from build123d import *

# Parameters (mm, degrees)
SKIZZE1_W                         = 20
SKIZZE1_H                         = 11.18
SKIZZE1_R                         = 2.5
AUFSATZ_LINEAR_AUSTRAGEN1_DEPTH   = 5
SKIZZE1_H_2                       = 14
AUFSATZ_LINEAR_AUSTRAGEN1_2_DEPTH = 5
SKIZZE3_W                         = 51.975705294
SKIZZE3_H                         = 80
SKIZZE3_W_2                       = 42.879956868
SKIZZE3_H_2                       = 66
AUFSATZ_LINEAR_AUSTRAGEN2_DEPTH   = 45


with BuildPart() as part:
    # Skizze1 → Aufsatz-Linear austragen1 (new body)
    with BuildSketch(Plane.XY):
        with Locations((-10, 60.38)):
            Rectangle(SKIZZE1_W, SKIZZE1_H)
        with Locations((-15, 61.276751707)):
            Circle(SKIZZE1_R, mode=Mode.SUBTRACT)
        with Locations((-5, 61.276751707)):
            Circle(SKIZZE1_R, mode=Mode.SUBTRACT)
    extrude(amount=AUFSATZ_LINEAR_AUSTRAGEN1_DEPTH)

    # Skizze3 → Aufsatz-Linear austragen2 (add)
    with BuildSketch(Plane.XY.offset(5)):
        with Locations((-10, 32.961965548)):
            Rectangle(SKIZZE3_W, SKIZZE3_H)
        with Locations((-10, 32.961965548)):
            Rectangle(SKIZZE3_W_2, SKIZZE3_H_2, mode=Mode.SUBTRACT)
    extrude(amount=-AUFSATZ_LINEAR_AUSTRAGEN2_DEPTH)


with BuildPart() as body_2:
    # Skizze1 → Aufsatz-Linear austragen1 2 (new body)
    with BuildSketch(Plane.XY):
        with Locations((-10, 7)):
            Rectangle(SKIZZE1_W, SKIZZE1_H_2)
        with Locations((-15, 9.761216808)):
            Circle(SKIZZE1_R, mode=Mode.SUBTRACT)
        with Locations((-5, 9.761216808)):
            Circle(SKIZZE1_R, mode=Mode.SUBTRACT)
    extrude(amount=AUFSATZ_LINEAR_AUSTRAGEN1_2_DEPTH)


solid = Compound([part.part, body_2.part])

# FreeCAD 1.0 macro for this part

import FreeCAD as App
import Part
import Sketcher
from FreeCAD import Vector

doc = App.newDocument("Part")
body = doc.addObject("PartDesign::Body", "Body")

# Sketch on XY plane
sketch1 = doc.addObject("Sketcher::SketchObject", "Sketch")
body.addObject(sketch1)
sketch1.AttachmentSupport = (doc.XY_Plane, [""])
sketch1.MapMode = "FlatFace"
sketch1.addGeometry([
    Part.LineSegment(Vector(-20, 66, 0), Vector(-20, 54.8, 0)),  # 0
    Part.LineSegment(Vector(-20, 54.8, 0), Vector(0, 54.8, 0)),  # 1
    Part.LineSegment(Vector(0, 54.8, 0), Vector(0, 66, 0)),  # 2
    Part.LineSegment(Vector(0, 66, 0), Vector(-20, 66, 0)),  # 3
    Part.Circle(Vector(-15, 61.3, 0), Vector(0, 0, 1), 2.5),  # 4
    Part.Circle(Vector(-5, 61.3, 0), Vector(0, 0, 1), 2.5),  # 5
], False)
sketch1.addConstraint([
    Sketcher.Constraint("Coincident", 0, 2, 1, 1),
    Sketcher.Constraint("Coincident", 1, 2, 2, 1),
    Sketcher.Constraint("Coincident", 2, 2, 3, 1),
    Sketcher.Constraint("Coincident", 3, 2, 0, 1),
    Sketcher.Constraint("Vertical", 0),
    Sketcher.Constraint("Horizontal", 1),
    Sketcher.Constraint("Vertical", 2),
    Sketcher.Constraint("Horizontal", 3),
    Sketcher.Constraint("Equal", 4, 5),
    Sketcher.Constraint("PointOnObject", 1, 2, -2),
    Sketcher.Constraint("Horizontal", 4, 3, 5, 3),
    Sketcher.Constraint("Diameter", 4, 5.0),
    Sketcher.Constraint("DistanceX", 1, 1, 1, 2, 20.0),
    Sketcher.Constraint("DistanceX", 4, 3, -1, 1, 15.0),
    Sketcher.Constraint("DistanceX", 5, 3, -1, 1, 5.0),
    Sketcher.Constraint("DistanceY", 0, 2, 0, 1, 11.18),
    Sketcher.Constraint("DistanceY", -1, 1, 0, 2, 54.79),
    Sketcher.Constraint("DistanceY", -1, 1, 4, 3, 61.276752),
])
pad1 = doc.addObject("PartDesign::Pad", "Pad")
body.addObject(pad1)
pad1.Profile = sketch1
pad1.Length = 5

# Sketch on XY plane
sketch2 = doc.addObject("Sketcher::SketchObject", "Sketch001")
body.addObject(sketch2)
sketch2.AttachmentSupport = (doc.XY_Plane, [""])
sketch2.MapMode = "FlatFace"
sketch2.AttachmentOffset = App.Placement(Vector(0, 0, 5), App.Rotation())
sketch2.addGeometry([
    Part.LineSegment(Vector(-36, 73, 0), Vector(-36, -7, 0)),  # 0
    Part.LineSegment(Vector(-36, -7, 0), Vector(16, -7, 0)),  # 1
    Part.LineSegment(Vector(16, -7, 0), Vector(16, 73, 0)),  # 2
    Part.LineSegment(Vector(16, 73, 0), Vector(-36, 73, 0)),  # 3
    Part.LineSegment(Vector(11, 0, 0), Vector(-31, 0, 0)),  # 4
    Part.LineSegment(Vector(-31, 0, 0), Vector(-31, 66, 0)),  # 5
    Part.LineSegment(Vector(-31, 66, 0), Vector(11, 66, 0)),  # 6
    Part.LineSegment(Vector(11, 66, 0), Vector(11, 0, 0)),  # 7
], False)
sketch2.addConstraint([
    Sketcher.Constraint("Coincident", 0, 2, 1, 1),
    Sketcher.Constraint("Coincident", 1, 2, 2, 1),
    Sketcher.Constraint("Coincident", 2, 2, 3, 1),
    Sketcher.Constraint("Coincident", 3, 2, 0, 1),
    Sketcher.Constraint("Coincident", 4, 2, 5, 1),
    Sketcher.Constraint("Coincident", 5, 2, 6, 1),
    Sketcher.Constraint("Coincident", 6, 2, 7, 1),
    Sketcher.Constraint("Coincident", 7, 2, 4, 1),
    Sketcher.Constraint("Vertical", 0),
    Sketcher.Constraint("Horizontal", 1),
    Sketcher.Constraint("Vertical", 2),
    Sketcher.Constraint("Horizontal", 3),
    Sketcher.Constraint("Horizontal", 4),
    Sketcher.Constraint("Vertical", 5),
    Sketcher.Constraint("Horizontal", 6),
    Sketcher.Constraint("Vertical", 7),
    Sketcher.Constraint("DistanceY", 0, 2, 0, 1, 80.0),
    Sketcher.Constraint("DistanceY", 5, 1, 5, 2, 66.0),
    Sketcher.Constraint("DistanceY", 0, 2, 4, 2, 7.0),
    Sketcher.Constraint("DistanceX", 1, 1, 1, 2, 51.975705),
    Sketcher.Constraint("DistanceX", 4, 2, 4, 1, 42.879957),
    Sketcher.Constraint("DistanceX", 4, 2, -1, 1, 31.439978),
    Sketcher.Constraint("DistanceX", 4, 2, 1, 2, 47.427831),
    Sketcher.Constraint("DistanceY", 0, 2, -1, 1, 7.038034),
])
pad2 = doc.addObject("PartDesign::Pad", "Pad001")
body.addObject(pad2)
pad2.Profile = sketch2
pad2.Length = 45
pad2.Reversed = True
body2 = doc.addObject("PartDesign::Body", "Body001")

# Sketch on XY plane
sketch3 = doc.addObject("Sketcher::SketchObject", "Sketch002")
body2.addObject(sketch3)
sketch3.AttachmentSupport = (doc.getObject("XY_Plane001"), [""])
sketch3.MapMode = "FlatFace"
sketch3.addGeometry([
    Part.LineSegment(Vector(-20, 14, 0), Vector(-20, 0, 0)),  # 0
    Part.LineSegment(Vector(-20, 0, 0), Vector(0, 0, 0)),  # 1
    Part.LineSegment(Vector(0, 0, 0), Vector(0, 14, 0)),  # 2
    Part.LineSegment(Vector(0, 14, 0), Vector(-20, 14, 0)),  # 3
    Part.Circle(Vector(-15, 9.8, 0), Vector(0, 0, 1), 2.5),  # 4
    Part.Circle(Vector(-5, 9.8, 0), Vector(0, 0, 1), 2.5),  # 5
], False)
sketch3.addConstraint([
    Sketcher.Constraint("Coincident", 0, 2, 1, 1),
    Sketcher.Constraint("Coincident", 1, 2, 2, 1),
    Sketcher.Constraint("Coincident", 2, 2, 3, 1),
    Sketcher.Constraint("Coincident", 3, 2, 0, 1),
    Sketcher.Constraint("Vertical", 0),
    Sketcher.Constraint("Horizontal", 1),
    Sketcher.Constraint("Vertical", 2),
    Sketcher.Constraint("Horizontal", 3),
    Sketcher.Constraint("Coincident", 1, 2, -1, 1),
    Sketcher.Constraint("Equal", 4, 5),
    Sketcher.Constraint("Horizontal", 4, 3, 5, 3),
    Sketcher.Constraint("Diameter", 4, 5.0),
    Sketcher.Constraint("DistanceX", 1, 1, 1, 2, 20.0),
    Sketcher.Constraint("DistanceY", 0, 2, 0, 1, 14.0),
    Sketcher.Constraint("DistanceX", 4, 3, -1, 1, 15.0),
    Sketcher.Constraint("DistanceX", 5, 3, -1, 1, 5.0),
    Sketcher.Constraint("DistanceY", -1, 1, 4, 3, 9.761217),
])
pad3 = doc.addObject("PartDesign::Pad", "Pad002")
body2.addObject(pad3)
pad3.Profile = sketch3
pad3.Length = 5

doc.recompute()
